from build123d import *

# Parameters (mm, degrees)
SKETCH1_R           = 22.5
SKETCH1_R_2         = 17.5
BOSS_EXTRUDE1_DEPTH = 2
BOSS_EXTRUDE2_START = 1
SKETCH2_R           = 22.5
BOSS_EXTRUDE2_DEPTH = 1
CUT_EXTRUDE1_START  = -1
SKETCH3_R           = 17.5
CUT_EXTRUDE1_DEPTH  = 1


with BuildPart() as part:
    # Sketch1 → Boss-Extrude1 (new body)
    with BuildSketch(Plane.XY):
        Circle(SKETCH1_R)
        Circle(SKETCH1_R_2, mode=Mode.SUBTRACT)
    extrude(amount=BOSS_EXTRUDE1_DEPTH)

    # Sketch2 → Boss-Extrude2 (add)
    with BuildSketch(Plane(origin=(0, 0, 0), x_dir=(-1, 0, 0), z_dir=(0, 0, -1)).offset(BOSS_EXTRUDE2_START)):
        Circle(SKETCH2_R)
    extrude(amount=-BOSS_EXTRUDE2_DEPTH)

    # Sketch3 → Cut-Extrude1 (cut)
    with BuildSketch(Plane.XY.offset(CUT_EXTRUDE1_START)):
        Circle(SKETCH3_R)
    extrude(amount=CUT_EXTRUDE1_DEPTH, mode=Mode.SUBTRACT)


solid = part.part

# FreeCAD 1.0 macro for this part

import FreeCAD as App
import Part
import Sketcher
from FreeCAD import Vector
Q = App.Units.Quantity

doc = App.newDocument("Part")
params = doc.addObject("Spreadsheet::Sheet", "Params")
for row, (alias, value) in enumerate([
    ("sketch1_diameter", "45 mm"),
    ("sketch1_diameter2", "35 mm"),
    ("pad1_length", "2 mm"),
    ("sketch2_diameter", "45 mm"),
    ("pad2_length", "1 mm"),
    ("sketch3_diameter", "35 mm"),
    ("pocket1_length", "1 mm"),
], start=1):
    params.set(f"A{row}", alias)
    params.set(f"B{row}", "=" + value)
    params.setAlias(f"B{row}", alias)

body = doc.addObject("PartDesign::Body", "Body")

# Sketch on XY plane
sketch1 = body.newObject("Sketcher::SketchObject", "Sketch")
sketch1.AttachmentSupport = (doc.getObject("XY_Plane"), [""])
sketch1.MapMode = "FlatFace"
sketch1.addGeometry([
    Part.Circle(Vector(0, 0, 0), Vector(0, 0, 1), 22),
    Part.Circle(Vector(0, 0, 0), Vector(0, 0, 1), 18),
], False)
sketch1.addConstraint([
    Sketcher.Constraint("Coincident", 0, 3, -1, 1),
    Sketcher.Constraint("Coincident", 1, 3, -1, 1),
    Sketcher.Constraint("Diameter", 0, Q("45 mm")),
    Sketcher.Constraint("Diameter", 1, Q("35 mm")),
])
sketch1.setExpression("Constraints[2]", "Params.sketch1_diameter")
sketch1.setExpression("Constraints[3]", "Params.sketch1_diameter2")
pad1 = body.newObject("PartDesign::Pad", "Pad")
pad1.Profile = sketch1
pad1.setExpression("Length", "Params.pad1_length")

# Sketch on XY plane
sketch2 = body.newObject("Sketcher::SketchObject", "Sketch001")
sketch2.AttachmentSupport = (doc.getObject("XY_Plane"), [""])
sketch2.MapMode = "FlatFace"
sketch2.AttachmentOffset = App.Placement(Vector(0, 0, -1), App.Rotation())
sketch2.addGeometry(Part.Circle(Vector(0, 0, 0), Vector(0, 0, 1), 22), False)
sketch2.addConstraint([
    Sketcher.Constraint("Coincident", 0, 3, -1, 1),
    Sketcher.Constraint("Diameter", 0, Q("45 mm")),
])
sketch2.setExpression("Constraints[1]", "Params.sketch2_diameter")
pad2 = body.newObject("PartDesign::Pad", "Pad001")
pad2.Profile = sketch2
pad2.setExpression("Length", "Params.pad2_length")

# Sketch on XY plane
sketch3 = body.newObject("Sketcher::SketchObject", "Sketch002")
sketch3.AttachmentSupport = (doc.getObject("XY_Plane"), [""])
sketch3.MapMode = "FlatFace"
sketch3.AttachmentOffset = App.Placement(Vector(0, 0, -1), App.Rotation())
sketch3.addGeometry(Part.Circle(Vector(0, 0, 0), Vector(0, 0, 1), 18), False)
sketch3.addConstraint([
    Sketcher.Constraint("Coincident", 0, 3, -1, 1),
    Sketcher.Constraint("Diameter", 0, Q("35 mm")),
])
sketch3.setExpression("Constraints[1]", "Params.sketch3_diameter")
pocket1 = body.newObject("PartDesign::Pocket", "Pocket")
pocket1.Profile = sketch3
pocket1.setExpression("Length", "Params.pocket1_length")
pocket1.Reversed = True

doc.recompute()
